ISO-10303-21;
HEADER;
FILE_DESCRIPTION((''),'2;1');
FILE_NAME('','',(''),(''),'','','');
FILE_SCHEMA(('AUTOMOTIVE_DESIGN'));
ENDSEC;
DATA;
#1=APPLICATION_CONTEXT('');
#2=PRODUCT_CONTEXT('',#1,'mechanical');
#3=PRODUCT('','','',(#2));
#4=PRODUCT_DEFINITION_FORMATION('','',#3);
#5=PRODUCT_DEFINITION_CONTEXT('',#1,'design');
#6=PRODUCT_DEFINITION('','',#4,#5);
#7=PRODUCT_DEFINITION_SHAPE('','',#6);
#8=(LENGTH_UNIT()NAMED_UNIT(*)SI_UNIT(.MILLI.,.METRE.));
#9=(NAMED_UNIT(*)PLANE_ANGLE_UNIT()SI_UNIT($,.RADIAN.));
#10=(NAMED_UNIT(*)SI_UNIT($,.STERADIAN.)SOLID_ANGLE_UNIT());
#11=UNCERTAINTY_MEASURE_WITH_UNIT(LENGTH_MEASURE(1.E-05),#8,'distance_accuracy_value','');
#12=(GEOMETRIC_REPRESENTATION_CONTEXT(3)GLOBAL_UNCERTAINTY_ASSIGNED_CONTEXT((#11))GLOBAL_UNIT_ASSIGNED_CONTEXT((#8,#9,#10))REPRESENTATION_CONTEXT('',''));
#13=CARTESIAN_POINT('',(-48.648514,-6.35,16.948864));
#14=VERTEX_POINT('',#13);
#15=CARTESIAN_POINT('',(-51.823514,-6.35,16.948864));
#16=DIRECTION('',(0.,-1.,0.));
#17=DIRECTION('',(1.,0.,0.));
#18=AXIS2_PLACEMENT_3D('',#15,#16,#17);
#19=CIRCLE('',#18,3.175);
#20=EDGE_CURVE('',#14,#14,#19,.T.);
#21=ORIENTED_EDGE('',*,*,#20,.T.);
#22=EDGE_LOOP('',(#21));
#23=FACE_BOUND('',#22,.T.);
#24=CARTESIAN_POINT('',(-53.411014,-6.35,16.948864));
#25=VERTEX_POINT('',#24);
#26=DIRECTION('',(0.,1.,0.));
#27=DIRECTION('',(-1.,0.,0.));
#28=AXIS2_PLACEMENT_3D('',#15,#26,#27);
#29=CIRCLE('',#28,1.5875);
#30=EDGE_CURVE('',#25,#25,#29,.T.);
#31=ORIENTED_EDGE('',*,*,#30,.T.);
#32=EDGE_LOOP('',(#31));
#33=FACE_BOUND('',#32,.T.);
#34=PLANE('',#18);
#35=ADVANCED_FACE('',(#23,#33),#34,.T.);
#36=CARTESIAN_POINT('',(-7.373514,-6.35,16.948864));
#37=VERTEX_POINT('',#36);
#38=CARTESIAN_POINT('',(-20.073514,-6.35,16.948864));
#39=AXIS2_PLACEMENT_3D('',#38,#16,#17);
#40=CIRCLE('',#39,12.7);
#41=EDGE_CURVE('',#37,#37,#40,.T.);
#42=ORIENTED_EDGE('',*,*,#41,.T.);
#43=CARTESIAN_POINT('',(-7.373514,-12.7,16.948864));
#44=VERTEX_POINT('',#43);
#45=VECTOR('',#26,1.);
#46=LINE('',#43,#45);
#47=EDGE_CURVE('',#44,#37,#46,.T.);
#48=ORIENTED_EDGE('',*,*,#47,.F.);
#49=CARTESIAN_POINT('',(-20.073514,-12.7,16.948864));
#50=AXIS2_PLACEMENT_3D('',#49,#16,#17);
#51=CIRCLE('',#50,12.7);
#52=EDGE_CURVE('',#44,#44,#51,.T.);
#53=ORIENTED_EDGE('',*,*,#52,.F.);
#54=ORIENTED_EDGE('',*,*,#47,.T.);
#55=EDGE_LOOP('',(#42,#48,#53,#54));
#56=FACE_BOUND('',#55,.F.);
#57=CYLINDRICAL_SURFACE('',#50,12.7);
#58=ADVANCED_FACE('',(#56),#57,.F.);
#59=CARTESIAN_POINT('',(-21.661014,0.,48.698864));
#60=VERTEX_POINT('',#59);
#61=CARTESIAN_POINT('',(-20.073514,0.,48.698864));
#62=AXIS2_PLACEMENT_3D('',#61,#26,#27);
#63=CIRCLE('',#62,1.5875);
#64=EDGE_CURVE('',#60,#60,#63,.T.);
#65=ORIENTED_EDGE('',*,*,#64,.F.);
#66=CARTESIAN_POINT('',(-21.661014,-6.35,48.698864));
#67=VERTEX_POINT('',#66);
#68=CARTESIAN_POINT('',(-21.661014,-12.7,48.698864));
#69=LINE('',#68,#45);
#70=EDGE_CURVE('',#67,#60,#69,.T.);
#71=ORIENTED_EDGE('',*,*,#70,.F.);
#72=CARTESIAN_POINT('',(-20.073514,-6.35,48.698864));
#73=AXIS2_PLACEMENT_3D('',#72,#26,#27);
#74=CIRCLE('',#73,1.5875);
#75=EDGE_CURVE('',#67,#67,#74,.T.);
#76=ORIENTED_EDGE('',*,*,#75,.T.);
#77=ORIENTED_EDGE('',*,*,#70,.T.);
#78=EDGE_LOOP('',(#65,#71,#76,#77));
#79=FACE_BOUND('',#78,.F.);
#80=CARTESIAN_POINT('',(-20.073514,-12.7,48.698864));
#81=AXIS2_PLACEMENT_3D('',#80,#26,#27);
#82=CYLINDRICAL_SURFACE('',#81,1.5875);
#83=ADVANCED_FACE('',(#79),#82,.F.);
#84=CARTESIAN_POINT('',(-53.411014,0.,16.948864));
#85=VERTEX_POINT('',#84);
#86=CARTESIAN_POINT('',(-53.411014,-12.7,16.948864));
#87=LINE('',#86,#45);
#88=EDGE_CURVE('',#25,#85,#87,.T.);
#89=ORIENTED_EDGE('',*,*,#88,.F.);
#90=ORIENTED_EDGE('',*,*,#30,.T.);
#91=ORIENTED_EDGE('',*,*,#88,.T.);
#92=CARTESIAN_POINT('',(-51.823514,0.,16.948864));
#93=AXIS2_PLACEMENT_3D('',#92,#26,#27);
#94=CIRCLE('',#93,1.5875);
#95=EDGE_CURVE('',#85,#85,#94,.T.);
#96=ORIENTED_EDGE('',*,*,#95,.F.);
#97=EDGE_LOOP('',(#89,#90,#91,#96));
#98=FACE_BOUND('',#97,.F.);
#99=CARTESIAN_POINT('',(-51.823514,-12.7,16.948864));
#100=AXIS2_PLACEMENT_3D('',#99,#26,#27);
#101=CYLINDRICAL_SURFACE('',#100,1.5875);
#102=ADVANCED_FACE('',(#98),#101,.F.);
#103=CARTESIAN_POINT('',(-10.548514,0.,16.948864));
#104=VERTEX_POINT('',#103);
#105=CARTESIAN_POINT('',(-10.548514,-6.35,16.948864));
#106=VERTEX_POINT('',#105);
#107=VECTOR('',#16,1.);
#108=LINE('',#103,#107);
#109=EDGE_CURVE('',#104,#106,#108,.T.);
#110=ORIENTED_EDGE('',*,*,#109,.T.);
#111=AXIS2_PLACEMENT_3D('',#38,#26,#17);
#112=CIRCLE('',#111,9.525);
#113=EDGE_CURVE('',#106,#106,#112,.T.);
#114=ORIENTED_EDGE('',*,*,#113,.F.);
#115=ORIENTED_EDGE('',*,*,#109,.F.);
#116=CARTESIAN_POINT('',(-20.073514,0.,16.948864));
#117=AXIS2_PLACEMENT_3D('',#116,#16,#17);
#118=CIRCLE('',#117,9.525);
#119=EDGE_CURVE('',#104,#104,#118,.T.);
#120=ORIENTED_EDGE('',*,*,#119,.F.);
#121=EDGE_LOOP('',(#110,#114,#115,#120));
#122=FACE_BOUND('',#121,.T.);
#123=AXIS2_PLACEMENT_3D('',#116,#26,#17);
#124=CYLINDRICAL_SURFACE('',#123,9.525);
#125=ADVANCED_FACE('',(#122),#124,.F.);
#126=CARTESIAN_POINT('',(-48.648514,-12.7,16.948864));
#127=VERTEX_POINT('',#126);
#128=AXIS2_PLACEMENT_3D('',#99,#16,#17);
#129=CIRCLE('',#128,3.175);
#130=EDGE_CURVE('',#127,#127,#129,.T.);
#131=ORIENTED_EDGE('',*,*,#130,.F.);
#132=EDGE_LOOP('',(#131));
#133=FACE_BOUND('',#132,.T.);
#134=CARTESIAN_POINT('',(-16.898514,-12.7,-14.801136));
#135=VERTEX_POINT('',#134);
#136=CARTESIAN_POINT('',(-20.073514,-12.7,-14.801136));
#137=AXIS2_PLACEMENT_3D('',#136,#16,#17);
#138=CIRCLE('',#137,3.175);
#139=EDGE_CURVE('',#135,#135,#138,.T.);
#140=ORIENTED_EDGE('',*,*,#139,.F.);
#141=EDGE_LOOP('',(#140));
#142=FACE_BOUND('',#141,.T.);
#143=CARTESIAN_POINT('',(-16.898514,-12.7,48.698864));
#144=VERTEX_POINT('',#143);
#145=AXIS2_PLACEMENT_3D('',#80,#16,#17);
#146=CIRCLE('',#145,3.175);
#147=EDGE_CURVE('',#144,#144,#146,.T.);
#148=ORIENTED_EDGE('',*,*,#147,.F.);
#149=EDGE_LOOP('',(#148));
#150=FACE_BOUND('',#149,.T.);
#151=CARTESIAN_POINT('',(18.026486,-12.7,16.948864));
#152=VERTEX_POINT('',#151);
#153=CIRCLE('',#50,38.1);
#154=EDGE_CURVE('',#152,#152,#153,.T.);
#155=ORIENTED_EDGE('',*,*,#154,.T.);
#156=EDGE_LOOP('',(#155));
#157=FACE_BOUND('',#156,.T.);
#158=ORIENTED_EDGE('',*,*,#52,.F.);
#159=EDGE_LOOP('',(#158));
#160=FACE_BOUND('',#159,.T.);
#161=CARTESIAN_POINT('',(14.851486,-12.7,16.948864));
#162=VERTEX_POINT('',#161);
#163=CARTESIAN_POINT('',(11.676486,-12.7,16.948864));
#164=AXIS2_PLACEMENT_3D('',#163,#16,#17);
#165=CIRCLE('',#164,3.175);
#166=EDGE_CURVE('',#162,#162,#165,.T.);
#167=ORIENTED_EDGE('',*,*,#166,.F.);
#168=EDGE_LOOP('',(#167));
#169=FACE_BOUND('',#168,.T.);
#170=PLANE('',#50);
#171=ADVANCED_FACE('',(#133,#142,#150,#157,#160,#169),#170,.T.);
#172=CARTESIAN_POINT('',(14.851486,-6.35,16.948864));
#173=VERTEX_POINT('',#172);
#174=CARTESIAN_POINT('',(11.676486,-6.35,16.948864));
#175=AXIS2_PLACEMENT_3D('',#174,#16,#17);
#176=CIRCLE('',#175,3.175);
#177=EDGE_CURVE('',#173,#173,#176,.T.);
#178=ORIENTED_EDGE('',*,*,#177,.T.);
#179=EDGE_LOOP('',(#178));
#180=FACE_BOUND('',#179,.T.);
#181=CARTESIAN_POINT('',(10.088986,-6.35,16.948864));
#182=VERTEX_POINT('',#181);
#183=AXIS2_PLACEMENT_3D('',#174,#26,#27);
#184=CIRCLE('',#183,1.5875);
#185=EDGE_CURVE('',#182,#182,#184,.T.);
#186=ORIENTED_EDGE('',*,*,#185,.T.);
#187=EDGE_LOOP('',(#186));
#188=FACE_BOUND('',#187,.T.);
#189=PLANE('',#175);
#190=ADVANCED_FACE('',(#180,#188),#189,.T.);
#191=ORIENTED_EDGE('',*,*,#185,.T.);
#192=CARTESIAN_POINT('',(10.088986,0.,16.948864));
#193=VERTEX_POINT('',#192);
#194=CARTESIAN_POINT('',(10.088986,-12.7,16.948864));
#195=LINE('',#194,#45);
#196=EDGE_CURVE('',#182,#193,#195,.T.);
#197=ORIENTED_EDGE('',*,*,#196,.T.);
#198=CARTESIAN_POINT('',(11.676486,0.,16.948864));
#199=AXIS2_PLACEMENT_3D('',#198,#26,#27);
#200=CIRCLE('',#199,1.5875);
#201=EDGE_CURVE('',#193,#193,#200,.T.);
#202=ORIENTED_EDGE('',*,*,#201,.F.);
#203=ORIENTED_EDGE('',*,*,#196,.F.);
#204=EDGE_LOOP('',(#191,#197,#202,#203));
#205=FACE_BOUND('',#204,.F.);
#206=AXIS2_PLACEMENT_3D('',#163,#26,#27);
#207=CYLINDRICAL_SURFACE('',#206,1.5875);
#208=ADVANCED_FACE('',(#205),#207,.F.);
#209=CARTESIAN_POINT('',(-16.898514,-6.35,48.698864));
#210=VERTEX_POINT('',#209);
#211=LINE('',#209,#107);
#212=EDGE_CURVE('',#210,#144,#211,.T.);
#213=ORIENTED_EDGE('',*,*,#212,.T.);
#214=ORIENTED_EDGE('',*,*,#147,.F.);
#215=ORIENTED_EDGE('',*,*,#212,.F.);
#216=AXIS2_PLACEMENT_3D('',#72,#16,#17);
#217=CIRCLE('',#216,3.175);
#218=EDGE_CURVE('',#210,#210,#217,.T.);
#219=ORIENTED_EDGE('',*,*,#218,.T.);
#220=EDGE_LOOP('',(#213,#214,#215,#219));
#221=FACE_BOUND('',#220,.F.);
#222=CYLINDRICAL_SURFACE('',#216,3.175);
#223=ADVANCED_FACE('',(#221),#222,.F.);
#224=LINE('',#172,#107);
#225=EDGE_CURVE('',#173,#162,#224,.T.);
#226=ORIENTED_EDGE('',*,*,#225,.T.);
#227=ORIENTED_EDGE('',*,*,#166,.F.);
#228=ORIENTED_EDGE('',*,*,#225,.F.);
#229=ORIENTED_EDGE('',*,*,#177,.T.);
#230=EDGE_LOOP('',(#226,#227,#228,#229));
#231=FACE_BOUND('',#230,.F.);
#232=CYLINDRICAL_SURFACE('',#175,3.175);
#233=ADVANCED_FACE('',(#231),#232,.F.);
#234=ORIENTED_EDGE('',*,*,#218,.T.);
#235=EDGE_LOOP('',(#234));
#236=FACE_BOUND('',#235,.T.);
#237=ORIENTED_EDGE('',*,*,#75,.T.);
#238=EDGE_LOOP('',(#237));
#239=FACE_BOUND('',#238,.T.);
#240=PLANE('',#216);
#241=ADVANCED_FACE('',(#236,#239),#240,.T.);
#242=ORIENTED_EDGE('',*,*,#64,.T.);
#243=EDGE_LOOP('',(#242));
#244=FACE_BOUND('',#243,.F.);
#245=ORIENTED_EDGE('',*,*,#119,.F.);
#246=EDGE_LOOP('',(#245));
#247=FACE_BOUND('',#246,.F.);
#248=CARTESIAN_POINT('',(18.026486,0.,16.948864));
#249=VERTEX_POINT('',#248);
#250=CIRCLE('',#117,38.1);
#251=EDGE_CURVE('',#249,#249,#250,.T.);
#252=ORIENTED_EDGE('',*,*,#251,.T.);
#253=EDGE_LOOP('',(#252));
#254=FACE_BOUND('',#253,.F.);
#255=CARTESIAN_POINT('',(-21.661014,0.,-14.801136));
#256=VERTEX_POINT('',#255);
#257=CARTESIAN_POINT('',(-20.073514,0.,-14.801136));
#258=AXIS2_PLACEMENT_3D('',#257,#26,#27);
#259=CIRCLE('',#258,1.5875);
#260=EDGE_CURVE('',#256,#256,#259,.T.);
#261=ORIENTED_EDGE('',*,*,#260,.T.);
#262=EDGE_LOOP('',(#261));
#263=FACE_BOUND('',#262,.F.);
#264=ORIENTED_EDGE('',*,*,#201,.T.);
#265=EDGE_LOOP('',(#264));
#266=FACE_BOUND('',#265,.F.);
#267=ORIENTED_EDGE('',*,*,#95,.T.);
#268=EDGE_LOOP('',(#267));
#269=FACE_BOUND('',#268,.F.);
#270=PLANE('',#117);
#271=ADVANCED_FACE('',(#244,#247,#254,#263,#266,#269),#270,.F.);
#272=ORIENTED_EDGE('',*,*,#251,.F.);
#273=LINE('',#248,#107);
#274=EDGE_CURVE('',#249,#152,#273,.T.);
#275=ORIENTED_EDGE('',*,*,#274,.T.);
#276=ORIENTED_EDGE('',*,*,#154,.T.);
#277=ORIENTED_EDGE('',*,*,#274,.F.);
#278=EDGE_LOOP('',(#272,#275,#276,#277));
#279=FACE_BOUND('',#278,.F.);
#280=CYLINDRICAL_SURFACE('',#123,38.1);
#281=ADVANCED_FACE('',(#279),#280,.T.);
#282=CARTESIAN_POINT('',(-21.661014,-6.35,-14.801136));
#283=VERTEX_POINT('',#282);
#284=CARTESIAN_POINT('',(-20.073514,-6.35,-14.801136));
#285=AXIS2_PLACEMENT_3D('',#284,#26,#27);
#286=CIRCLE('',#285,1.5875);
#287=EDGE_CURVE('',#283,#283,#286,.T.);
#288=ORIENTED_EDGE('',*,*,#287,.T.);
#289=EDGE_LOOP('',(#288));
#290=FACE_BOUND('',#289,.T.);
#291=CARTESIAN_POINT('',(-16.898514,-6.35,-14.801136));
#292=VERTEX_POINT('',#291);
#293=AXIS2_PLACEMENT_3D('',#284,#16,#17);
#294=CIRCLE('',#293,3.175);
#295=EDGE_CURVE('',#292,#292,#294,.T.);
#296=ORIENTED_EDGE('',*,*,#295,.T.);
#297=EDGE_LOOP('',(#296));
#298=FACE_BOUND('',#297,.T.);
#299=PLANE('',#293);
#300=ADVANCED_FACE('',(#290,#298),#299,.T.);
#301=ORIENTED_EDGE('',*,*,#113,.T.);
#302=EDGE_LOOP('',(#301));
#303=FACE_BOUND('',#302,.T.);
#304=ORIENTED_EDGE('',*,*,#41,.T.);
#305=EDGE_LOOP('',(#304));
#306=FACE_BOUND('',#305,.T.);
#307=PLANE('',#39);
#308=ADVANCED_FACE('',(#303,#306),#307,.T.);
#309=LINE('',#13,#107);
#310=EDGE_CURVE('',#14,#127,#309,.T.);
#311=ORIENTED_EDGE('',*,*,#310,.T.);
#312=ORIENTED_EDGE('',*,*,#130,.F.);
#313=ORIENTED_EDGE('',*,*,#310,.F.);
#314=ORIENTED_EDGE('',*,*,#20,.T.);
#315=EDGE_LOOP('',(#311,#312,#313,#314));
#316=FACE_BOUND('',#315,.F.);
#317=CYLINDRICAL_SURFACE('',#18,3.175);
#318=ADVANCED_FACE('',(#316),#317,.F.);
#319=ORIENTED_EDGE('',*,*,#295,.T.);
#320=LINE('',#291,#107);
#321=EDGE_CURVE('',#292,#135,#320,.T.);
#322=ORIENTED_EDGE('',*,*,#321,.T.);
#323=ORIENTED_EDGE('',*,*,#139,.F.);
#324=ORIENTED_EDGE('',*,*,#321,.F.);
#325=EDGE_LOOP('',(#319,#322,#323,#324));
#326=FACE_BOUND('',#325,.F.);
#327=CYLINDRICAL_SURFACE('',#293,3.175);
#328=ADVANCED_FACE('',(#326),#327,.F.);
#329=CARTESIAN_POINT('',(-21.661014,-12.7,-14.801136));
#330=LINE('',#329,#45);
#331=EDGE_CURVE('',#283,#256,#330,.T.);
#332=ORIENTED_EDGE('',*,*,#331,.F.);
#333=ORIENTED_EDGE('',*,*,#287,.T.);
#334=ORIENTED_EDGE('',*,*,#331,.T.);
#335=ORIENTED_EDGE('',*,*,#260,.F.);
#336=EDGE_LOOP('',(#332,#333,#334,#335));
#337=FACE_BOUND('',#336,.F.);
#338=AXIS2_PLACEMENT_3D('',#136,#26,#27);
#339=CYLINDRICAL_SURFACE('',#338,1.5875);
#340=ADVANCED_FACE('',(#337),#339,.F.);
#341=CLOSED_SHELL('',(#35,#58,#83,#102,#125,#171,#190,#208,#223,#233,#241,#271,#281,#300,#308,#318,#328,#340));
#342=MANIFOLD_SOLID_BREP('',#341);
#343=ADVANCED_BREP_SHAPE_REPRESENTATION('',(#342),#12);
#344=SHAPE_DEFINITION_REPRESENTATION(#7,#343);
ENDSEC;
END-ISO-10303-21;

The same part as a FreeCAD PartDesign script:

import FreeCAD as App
import Part
import Sketcher

V = App.Vector
Q = App.Units.Quantity

doc = App.newDocument("Part")
body = doc.addObject("PartDesign::Body", "Body")

sketch1 = doc.addObject("Sketcher::SketchObject", "Sketch")
body.addObject(sketch1)
sketch1.AttachmentSupport = (doc.XZ_Plane, [""])
sketch1.MapMode = "FlatFace"
sketch1.addGeometry([
    Part.Circle(V(-20, 17, 0), V(0, 0, 1), 38),
    Part.Circle(V(-20, 17, 0), V(0, 0, 1), 10),
], False)
sketch1.addConstraint([
    Sketcher.Constraint("Coincident", 1, 3, 0, 3),
    Sketcher.Constraint("Diameter", 0, Q("3 in")),
    Sketcher.Constraint("Diameter", 1, Q("0.75 in")),
    Sketcher.Constraint("DistanceX", 0, 3, -1, 1, Q("20.073514 mm")),
    Sketcher.Constraint("DistanceY", -1, 1, 0, 3, Q("16.948864 mm")),
])
pad1 = doc.addObject("PartDesign::Pad", "Pad")
body.addObject(pad1)
pad1.Profile = sketch1
pad1.Length = Q("0.5 in")

sketch2 = doc.addObject("Sketcher::SketchObject", "Sketch001")
body.addObject(sketch2)
sketch2.AttachmentSupport = (doc.XZ_Plane, [""])
sketch2.MapMode = "FlatFace"
sketch2.AttachmentOffset = App.Placement(V(0, 0, 0.5 * 25.4), App.Rotation())
sketch2.addGeometry(Part.Circle(V(-20, 17, 0), V(0, 0, 1), 13), False)
sketch2.addConstraint([
    Sketcher.Constraint("Diameter", 0, Q("1 in")),
    Sketcher.Constraint("DistanceX", 0, 3, -1, 1, Q("20.073514 mm")),
    Sketcher.Constraint("DistanceY", -1, 1, 0, 3, Q("16.948864 mm")),
])
pocket1 = doc.addObject("PartDesign::Pocket", "Pocket")
body.addObject(pocket1)
pocket1.Profile = sketch2
pocket1.Length = Q("0.25 in")

sketch3 = doc.addObject("Sketcher::SketchObject", "Sketch002")
body.addObject(sketch3)
sketch3.AttachmentSupport = (doc.XZ_Plane, [""])
sketch3.MapMode = "FlatFace"
sketch3.AttachmentOffset = App.Placement(V(0, 0, 0.5 * 25.4), App.Rotation())
sketch3.addGeometry([
    Part.Circle(V(-20.1, 48.7, 0), V(0, 0, 1), 1.6),
    Part.Circle(V(-51.8, 16.9, 0), V(0, 0, 1), 1.6),
    Part.Circle(V(-20.1, -14.8, 0), V(0, 0, 1), 1.6),
    Part.Circle(V(11.7, 16.9, 0), V(0, 0, 1), 1.6),
], False)
sketch3.addConstraint([
    Sketcher.Constraint("Equal", 0, 1),
    Sketcher.Constraint("Equal", 1, 2),
    Sketcher.Constraint("Equal", 2, 3),
    Sketcher.Constraint("Horizontal", 1, 3, 3, 3),
    Sketcher.Constraint("Vertical", 0, 3, 2, 3),
    Sketcher.Constraint("Diameter", 0, Q("0.125 in")),
    Sketcher.Constraint("DistanceY", 2, 3, 0, 3, Q("2.5 in")),
    Sketcher.Constraint("DistanceX", 1, 3, 3, 3, Q("2.5 in")),
    Sketcher.Constraint("DistanceX", 1, 3, 0, 3, Q("1.25 in")),
    Sketcher.Constraint("DistanceY", 1, 3, 0, 3, Q("1.25 in")),
    Sketcher.Constraint("DistanceX", 0, 3, -1, 1, Q("20.073514 mm")),
    Sketcher.Constraint("DistanceY", -1, 1, 0, 3, Q("48.698864 mm")),
])
doc.recompute()
hole = doc.addObject("PartDesign::Hole", "Hole")
body.addObject(hole)
hole.Profile = sketch3
hole.ThreadType = "None"
hole.Diameter = Q("0.125 in")
hole.DepthType = "ThroughAll"
hole.HoleCutType = "Counterbore"
hole.HoleCutDiameter = Q("0.25 in")
hole.HoleCutDepth = Q("0.25 in")

doc.recompute()
